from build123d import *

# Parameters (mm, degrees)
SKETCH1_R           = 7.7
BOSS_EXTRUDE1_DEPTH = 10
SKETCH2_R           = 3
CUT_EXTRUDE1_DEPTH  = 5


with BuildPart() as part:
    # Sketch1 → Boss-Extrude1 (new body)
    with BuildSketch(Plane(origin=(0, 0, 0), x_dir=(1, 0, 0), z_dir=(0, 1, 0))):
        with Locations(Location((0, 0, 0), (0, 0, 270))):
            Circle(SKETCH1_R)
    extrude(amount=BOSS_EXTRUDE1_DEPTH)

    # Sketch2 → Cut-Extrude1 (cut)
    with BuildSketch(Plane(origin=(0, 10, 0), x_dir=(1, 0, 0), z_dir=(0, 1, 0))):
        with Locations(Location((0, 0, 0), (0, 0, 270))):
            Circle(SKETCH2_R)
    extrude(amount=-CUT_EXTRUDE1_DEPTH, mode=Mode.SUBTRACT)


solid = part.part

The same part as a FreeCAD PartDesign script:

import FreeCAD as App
import Part
import Sketcher

V = App.Vector

doc = App.newDocument("Part")
params = doc.addObject("Spreadsheet::Sheet", "Params")
for row, (alias, value) in enumerate([
    ("sketch1_diameter", "15.4 mm"),
    ("pad1_length", "10 mm"),
    ("sketch2_diameter", "6 mm"),
    ("pocket1_length", "5 mm"),
], start=1):
    params.set(f"A{row}", alias)
    params.set(f"B{row}", "=" + value)
    params.setAlias(f"B{row}", alias)

body = doc.addObject("PartDesign::Body", "Body")

# Sketch on XZ plane
sketch1 = body.newObject("Sketcher::SketchObject", "Sketch")
sketch1.AttachmentSupport = (doc.getObject("XZ_Plane"), [""])
sketch1.MapMode = "FlatFace"
sketch1.addGeometry(Part.Circle(V(0, 0, 0), V(0, 0, 1), 8), False)
sketch1.addConstraint(Sketcher.Constraint("Coincident", 0, 3, -1, 1))
sketch1.addConstraint(Sketcher.Constraint("Diameter", 0, 15.4))
sketch1.setExpression("Constraints[1]", "Params.sketch1_diameter")
pad1 = body.newObject("PartDesign::Pad", "Pad")
pad1.Profile = sketch1
pad1.setExpression("Length", "Params.pad1_length")
pad1.Reversed = True

# Sketch on XZ plane
sketch2 = body.newObject("Sketcher::SketchObject", "Sketch001")
sketch2.AttachmentSupport = (doc.getObject("XZ_Plane"), [""])
sketch2.MapMode = "FlatFace"
sketch2.AttachmentOffset = App.Placement(V(0, 0, -10), App.Rotation())
sketch2.addGeometry(Part.Circle(V(0, 0, 0), V(0, 0, 1), 3), False)
sketch2.addConstraint(Sketcher.Constraint("Coincident", 0, 3, -1, 1))
sketch2.addConstraint(Sketcher.Constraint("Diameter", 0, 6.0))
sketch2.setExpression("Constraints[1]", "Params.sketch2_diameter")
pocket1 = body.newObject("PartDesign::Pocket", "Pocket")
pocket1.Profile = sketch2
pocket1.setExpression("Length", "Params.pocket1_length")
pocket1.Reversed = True

doc.recompute()
